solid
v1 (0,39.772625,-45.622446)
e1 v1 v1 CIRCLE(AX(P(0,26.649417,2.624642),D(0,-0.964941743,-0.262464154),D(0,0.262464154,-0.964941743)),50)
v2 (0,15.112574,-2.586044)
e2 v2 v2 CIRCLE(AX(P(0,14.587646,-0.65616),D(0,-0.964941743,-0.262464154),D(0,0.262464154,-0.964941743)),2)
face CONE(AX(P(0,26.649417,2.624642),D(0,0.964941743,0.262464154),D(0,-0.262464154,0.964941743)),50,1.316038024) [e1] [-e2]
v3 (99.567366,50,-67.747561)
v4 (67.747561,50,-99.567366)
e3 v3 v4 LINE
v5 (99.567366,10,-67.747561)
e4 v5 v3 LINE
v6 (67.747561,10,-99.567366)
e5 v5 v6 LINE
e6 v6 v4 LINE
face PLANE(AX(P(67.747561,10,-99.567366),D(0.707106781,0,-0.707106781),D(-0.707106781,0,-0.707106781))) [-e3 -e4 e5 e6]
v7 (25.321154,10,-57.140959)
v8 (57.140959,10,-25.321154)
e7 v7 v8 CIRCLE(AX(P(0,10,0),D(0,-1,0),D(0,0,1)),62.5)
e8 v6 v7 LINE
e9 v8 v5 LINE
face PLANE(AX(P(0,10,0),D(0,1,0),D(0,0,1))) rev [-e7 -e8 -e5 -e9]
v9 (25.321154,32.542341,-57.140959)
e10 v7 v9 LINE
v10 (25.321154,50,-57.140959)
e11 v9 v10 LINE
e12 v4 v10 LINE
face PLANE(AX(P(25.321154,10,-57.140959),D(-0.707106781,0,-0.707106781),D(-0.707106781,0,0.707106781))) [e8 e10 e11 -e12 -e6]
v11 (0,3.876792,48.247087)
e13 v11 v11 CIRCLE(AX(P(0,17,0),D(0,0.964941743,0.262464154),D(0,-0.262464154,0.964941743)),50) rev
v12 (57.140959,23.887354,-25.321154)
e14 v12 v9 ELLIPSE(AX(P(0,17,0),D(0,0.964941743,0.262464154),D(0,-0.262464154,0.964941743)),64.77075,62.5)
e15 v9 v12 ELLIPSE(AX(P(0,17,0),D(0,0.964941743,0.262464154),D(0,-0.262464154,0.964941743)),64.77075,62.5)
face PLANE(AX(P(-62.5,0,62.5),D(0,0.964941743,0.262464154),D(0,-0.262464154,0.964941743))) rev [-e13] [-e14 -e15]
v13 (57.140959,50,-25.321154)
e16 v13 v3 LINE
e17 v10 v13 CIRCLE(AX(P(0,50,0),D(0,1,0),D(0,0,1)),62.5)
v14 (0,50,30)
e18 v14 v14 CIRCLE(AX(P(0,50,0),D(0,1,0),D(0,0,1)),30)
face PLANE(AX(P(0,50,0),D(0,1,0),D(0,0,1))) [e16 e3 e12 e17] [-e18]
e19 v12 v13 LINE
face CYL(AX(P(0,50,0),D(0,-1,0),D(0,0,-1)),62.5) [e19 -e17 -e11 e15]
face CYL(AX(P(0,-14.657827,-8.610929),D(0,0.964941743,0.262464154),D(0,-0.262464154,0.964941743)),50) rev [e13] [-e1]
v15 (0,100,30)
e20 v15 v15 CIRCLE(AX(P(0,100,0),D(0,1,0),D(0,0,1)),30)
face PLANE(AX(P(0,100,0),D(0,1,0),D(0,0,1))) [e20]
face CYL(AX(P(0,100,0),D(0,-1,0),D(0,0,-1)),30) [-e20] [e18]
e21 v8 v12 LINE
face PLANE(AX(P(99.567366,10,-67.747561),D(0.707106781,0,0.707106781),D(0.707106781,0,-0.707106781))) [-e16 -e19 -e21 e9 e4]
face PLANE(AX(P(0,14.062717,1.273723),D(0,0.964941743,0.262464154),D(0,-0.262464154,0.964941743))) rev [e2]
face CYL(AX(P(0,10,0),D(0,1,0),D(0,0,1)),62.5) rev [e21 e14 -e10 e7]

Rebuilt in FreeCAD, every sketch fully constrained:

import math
import FreeCAD as App
import Part
import Sketcher
from FreeCAD import Vector
Q = App.Units.Quantity

doc = App.newDocument("Part")
body = doc.addObject("PartDesign::Body", "Body")

sketch1 = doc.addObject("Sketcher::SketchObject", "Sketch")
body.addObject(sketch1)
sketch1.AttachmentSupport = (doc.XZ_Plane, [""])
sketch1.MapMode = "FlatFace"
sketch1.addGeometry(Part.Circle(Vector(0, 0, 0), Vector(0, 0, 1), 62), False)
sketch1.addConstraint(Sketcher.Constraint("Coincident", 0, 3, -1, 1))
sketch1.addConstraint(Sketcher.Constraint("Diameter", 0, Q("125 mm")))
pad1 = doc.addObject("PartDesign::Pad", "Pad")
body.addObject(pad1)
pad1.Profile = sketch1
pad1.Length = 50
pad1.Reversed = True

sketch2 = doc.addObject("Sketcher::SketchObject", "Sketch001")
body.addObject(sketch2)
sketch2.AttachmentSupport = (doc.YZ_Plane, [""])
sketch2.MapMode = "FlatFace"
sketch2.addGeometry(Part.LineSegment(Vector(34, -62, 0), Vector(0, 62, 0)), False)
sketch2.addGeometry(Part.LineSegment(Vector(0, 62, 0), Vector(0, -62, 0)), False)
sketch2.addGeometry(Part.LineSegment(Vector(0, -62, 0), Vector(34, -62, 0)), False)
sketch2.addConstraint(Sketcher.Constraint("Coincident", 0, 2, 1, 1))
sketch2.addConstraint(Sketcher.Constraint("Coincident", 1, 2, 2, 1))
sketch2.addConstraint(Sketcher.Constraint("Coincident", 2, 2, 0, 1))
sketch2.addConstraint(Sketcher.Constraint("Vertical", 1))
sketch2.addConstraint(Sketcher.Constraint("Horizontal", 2))
sketch2.addConstraint(Sketcher.Constraint("Symmetric", 0, 2, 1, 2, -1, 1))
sketch2.addConstraint(Sketcher.Constraint("DistanceX", 2, 1, 2, 2, Q("34 mm")))
sketch2.addConstraint(Sketcher.Constraint("DistanceY", 1, 2, 1, 1, Q("125 mm")))
pocket1 = doc.addObject("PartDesign::Pocket", "Pocket")
body.addObject(pocket1)
pocket1.Profile = sketch2
pocket1.Type = "ThroughAll"
pocket1.Midplane = True

sketch3 = doc.addObject("Sketcher::SketchObject", "Sketch002")
body.addObject(sketch3)
sketch3.AttachmentSupport = (doc.XZ_Plane, [""])
sketch3.MapMode = "FlatFace"
sketch3.AttachmentOffset = App.Placement(Vector(0, 0, -50), App.Rotation())
sketch3.addGeometry(Part.Circle(Vector(0, 0, 0), Vector(0, 0, 1), 30), False)
sketch3.addConstraint(Sketcher.Constraint("Coincident", 0, 3, -1, 1))
sketch3.addConstraint(Sketcher.Constraint("Diameter", 0, Q("60 mm")))
pad2 = doc.addObject("PartDesign::Pad", "Pad001")
body.addObject(pad2)
pad2.Profile = sketch3
pad2.Length = 50
pad2.Reversed = True

sketch4 = doc.addObject("Sketcher::SketchObject", "Sketch003")
body.addObject(sketch4)
sketch4.Placement = App.Placement(Vector(0, 15.828914, 4.305465), App.Rotation(Vector(1, 0, 0), Vector(0, -0.262464154, 0.964941743), Vector(0, -0.964941743, -0.262464154), "ZXY"))
sketch4.addGeometry(Part.Circle(Vector(0, -4, 0), Vector(0, 0, 1), 50), False)
sketch4.addConstraint(Sketcher.Constraint("PointOnObject", 0, 3, -2))
sketch4.addConstraint(Sketcher.Constraint("Diameter", 0, Q("100 mm")))
sketch4.addConstraint(Sketcher.Constraint("DistanceY", 0, 3, -1, 1, Q("4.461891 mm")))
pocket2 = doc.addObject("PartDesign::Pocket", "Pocket001")
body.addObject(pocket2)
pocket2.Profile = sketch4
pocket2.Type = "TwoLengths"
pocket2.Length = 33.808019
pocket2.Length2 = 10
pocket2.Reversed = True

sketch5 = doc.addObject("Sketcher::SketchObject", "Sketch004")
body.addObject(sketch5)
sketch5.AttachmentSupport = (doc.YZ_Plane, [""])
sketch5.MapMode = "FlatFace"
sketch5.addGeometry(Part.LineSegment(Vector(13.5, 50.9, 0), Vector(14.1, 1.3, 0)), False)
sketch5.addGeometry(Part.LineSegment(Vector(14.1, 1.3, 0), Vector(14.6, -0.7, 0)), False)
sketch5.addGeometry(Part.LineSegment(Vector(14.6, -0.7, 0), Vector(26.6, 2.6, 0)), False)
sketch5.addGeometry(Part.LineSegment(Vector(26.6, 2.6, 0), Vector(13.5, 50.9, 0)), False)
sketch5.addGeometry(Part.LineSegment(Vector(14.6, -0.7, 0), Vector(26.6, 2.6, 0)), True)
sketch5.addConstraint(Sketcher.Constraint("Coincident", 0, 2, 1, 1))
sketch5.addConstraint(Sketcher.Constraint("Coincident", 1, 2, 2, 1))
sketch5.addConstraint(Sketcher.Constraint("Coincident", 2, 2, 3, 1))
sketch5.addConstraint(Sketcher.Constraint("Coincident", 3, 2, 0, 1))
sketch5.addConstraint(Sketcher.Constraint("Coincident", 4, 1, 1, 2))
sketch5.addConstraint(Sketcher.Constraint("Coincident", 4, 2, 2, 2))
sketch5.addConstraint(Sketcher.Constraint("Perpendicular", 1, 2))
sketch5.addConstraint(Sketcher.Constraint("Perpendicular", 2, 3))
sketch5.addConstraint(Sketcher.Constraint("Distance", 1, Q("2 mm")))
sketch5.addConstraint(Sketcher.Constraint("Distance", 3, Q("50 mm")))
sketch5.addConstraint(Sketcher.Constraint("Distance", 2, Q("12.5 mm")))
sketch5.addConstraint(Sketcher.Constraint("DistanceY", 1, 2, 2, 2, Q("3.280802 mm")))
sketch5.addConstraint(Sketcher.Constraint("DistanceY", 1, 2, -1, 1, Q("0.65616 mm")))
sketch5.addConstraint(Sketcher.Constraint("DistanceX", -1, 1, 3, 2, Q("13.52621 mm")))
revolution = doc.addObject("PartDesign::Revolution", "Revolution")
body.addObject(revolution)
revolution.Profile = sketch5
revolution.ReferenceAxis = (sketch5, ["Axis0"])
revolution.Angle = 360

sketch6 = doc.addObject("Sketcher::SketchObject", "Sketch005")
body.addObject(sketch6)
sketch6.AttachmentSupport = (doc.XZ_Plane, [""])
sketch6.MapMode = "FlatFace"
sketch6.AttachmentOffset = App.Placement(Vector(0, 0, -50), App.Rotation())
sketch6.addGeometry(Part.LineSegment(Vector(68, -100, 0), Vector(25, -57, 0)), False)
sketch6.addGeometry(Part.ArcOfCircle(Part.Circle(Vector(0, 0, 0), Vector(0, 0, 1), 63), math.radians(-66), math.radians(-24)), False)
sketch6.addGeometry(Part.LineSegment(Vector(57, -25, 0), Vector(100, -68, 0)), False)
sketch6.addGeometry(Part.LineSegment(Vector(100, -68, 0), Vector(68, -100, 0)), False)
sketch6.addConstraint(Sketcher.Constraint("Coincident", 0, 2, 1, 1))
sketch6.addConstraint(Sketcher.Constraint("Coincident", 1, 2, 2, 1))
sketch6.addConstraint(Sketcher.Constraint("Coincident", 2, 2, 3, 1))
sketch6.addConstraint(Sketcher.Constraint("Coincident", 3, 2, 0, 1))
sketch6.addConstraint(Sketcher.Constraint("Coincident", 1, 3, -1, 1))
sketch6.addConstraint(Sketcher.Constraint("Parallel", 0, 2))
sketch6.addConstraint(Sketcher.Constraint("Perpendicular", 2, 3))
sketch6.addConstraint(Sketcher.Constraint("Equal", 0, 2))
sketch6.addConstraint(Sketcher.Constraint("Radius", 1, Q("62.5 mm")))
sketch6.addConstraint(Sketcher.Constraint("Angle", 0, Q("135 deg")))
sketch6.addConstraint(Sketcher.Constraint("Distance", 0, Q("60 mm")))
sketch6.addConstraint(Sketcher.Constraint("Distance", 3, Q("45 mm")))
pad3 = doc.addObject("PartDesign::Pad", "Pad002")
body.addObject(pad3)
pad3.Profile = sketch6
pad3.Length = 40

doc.recompute()
